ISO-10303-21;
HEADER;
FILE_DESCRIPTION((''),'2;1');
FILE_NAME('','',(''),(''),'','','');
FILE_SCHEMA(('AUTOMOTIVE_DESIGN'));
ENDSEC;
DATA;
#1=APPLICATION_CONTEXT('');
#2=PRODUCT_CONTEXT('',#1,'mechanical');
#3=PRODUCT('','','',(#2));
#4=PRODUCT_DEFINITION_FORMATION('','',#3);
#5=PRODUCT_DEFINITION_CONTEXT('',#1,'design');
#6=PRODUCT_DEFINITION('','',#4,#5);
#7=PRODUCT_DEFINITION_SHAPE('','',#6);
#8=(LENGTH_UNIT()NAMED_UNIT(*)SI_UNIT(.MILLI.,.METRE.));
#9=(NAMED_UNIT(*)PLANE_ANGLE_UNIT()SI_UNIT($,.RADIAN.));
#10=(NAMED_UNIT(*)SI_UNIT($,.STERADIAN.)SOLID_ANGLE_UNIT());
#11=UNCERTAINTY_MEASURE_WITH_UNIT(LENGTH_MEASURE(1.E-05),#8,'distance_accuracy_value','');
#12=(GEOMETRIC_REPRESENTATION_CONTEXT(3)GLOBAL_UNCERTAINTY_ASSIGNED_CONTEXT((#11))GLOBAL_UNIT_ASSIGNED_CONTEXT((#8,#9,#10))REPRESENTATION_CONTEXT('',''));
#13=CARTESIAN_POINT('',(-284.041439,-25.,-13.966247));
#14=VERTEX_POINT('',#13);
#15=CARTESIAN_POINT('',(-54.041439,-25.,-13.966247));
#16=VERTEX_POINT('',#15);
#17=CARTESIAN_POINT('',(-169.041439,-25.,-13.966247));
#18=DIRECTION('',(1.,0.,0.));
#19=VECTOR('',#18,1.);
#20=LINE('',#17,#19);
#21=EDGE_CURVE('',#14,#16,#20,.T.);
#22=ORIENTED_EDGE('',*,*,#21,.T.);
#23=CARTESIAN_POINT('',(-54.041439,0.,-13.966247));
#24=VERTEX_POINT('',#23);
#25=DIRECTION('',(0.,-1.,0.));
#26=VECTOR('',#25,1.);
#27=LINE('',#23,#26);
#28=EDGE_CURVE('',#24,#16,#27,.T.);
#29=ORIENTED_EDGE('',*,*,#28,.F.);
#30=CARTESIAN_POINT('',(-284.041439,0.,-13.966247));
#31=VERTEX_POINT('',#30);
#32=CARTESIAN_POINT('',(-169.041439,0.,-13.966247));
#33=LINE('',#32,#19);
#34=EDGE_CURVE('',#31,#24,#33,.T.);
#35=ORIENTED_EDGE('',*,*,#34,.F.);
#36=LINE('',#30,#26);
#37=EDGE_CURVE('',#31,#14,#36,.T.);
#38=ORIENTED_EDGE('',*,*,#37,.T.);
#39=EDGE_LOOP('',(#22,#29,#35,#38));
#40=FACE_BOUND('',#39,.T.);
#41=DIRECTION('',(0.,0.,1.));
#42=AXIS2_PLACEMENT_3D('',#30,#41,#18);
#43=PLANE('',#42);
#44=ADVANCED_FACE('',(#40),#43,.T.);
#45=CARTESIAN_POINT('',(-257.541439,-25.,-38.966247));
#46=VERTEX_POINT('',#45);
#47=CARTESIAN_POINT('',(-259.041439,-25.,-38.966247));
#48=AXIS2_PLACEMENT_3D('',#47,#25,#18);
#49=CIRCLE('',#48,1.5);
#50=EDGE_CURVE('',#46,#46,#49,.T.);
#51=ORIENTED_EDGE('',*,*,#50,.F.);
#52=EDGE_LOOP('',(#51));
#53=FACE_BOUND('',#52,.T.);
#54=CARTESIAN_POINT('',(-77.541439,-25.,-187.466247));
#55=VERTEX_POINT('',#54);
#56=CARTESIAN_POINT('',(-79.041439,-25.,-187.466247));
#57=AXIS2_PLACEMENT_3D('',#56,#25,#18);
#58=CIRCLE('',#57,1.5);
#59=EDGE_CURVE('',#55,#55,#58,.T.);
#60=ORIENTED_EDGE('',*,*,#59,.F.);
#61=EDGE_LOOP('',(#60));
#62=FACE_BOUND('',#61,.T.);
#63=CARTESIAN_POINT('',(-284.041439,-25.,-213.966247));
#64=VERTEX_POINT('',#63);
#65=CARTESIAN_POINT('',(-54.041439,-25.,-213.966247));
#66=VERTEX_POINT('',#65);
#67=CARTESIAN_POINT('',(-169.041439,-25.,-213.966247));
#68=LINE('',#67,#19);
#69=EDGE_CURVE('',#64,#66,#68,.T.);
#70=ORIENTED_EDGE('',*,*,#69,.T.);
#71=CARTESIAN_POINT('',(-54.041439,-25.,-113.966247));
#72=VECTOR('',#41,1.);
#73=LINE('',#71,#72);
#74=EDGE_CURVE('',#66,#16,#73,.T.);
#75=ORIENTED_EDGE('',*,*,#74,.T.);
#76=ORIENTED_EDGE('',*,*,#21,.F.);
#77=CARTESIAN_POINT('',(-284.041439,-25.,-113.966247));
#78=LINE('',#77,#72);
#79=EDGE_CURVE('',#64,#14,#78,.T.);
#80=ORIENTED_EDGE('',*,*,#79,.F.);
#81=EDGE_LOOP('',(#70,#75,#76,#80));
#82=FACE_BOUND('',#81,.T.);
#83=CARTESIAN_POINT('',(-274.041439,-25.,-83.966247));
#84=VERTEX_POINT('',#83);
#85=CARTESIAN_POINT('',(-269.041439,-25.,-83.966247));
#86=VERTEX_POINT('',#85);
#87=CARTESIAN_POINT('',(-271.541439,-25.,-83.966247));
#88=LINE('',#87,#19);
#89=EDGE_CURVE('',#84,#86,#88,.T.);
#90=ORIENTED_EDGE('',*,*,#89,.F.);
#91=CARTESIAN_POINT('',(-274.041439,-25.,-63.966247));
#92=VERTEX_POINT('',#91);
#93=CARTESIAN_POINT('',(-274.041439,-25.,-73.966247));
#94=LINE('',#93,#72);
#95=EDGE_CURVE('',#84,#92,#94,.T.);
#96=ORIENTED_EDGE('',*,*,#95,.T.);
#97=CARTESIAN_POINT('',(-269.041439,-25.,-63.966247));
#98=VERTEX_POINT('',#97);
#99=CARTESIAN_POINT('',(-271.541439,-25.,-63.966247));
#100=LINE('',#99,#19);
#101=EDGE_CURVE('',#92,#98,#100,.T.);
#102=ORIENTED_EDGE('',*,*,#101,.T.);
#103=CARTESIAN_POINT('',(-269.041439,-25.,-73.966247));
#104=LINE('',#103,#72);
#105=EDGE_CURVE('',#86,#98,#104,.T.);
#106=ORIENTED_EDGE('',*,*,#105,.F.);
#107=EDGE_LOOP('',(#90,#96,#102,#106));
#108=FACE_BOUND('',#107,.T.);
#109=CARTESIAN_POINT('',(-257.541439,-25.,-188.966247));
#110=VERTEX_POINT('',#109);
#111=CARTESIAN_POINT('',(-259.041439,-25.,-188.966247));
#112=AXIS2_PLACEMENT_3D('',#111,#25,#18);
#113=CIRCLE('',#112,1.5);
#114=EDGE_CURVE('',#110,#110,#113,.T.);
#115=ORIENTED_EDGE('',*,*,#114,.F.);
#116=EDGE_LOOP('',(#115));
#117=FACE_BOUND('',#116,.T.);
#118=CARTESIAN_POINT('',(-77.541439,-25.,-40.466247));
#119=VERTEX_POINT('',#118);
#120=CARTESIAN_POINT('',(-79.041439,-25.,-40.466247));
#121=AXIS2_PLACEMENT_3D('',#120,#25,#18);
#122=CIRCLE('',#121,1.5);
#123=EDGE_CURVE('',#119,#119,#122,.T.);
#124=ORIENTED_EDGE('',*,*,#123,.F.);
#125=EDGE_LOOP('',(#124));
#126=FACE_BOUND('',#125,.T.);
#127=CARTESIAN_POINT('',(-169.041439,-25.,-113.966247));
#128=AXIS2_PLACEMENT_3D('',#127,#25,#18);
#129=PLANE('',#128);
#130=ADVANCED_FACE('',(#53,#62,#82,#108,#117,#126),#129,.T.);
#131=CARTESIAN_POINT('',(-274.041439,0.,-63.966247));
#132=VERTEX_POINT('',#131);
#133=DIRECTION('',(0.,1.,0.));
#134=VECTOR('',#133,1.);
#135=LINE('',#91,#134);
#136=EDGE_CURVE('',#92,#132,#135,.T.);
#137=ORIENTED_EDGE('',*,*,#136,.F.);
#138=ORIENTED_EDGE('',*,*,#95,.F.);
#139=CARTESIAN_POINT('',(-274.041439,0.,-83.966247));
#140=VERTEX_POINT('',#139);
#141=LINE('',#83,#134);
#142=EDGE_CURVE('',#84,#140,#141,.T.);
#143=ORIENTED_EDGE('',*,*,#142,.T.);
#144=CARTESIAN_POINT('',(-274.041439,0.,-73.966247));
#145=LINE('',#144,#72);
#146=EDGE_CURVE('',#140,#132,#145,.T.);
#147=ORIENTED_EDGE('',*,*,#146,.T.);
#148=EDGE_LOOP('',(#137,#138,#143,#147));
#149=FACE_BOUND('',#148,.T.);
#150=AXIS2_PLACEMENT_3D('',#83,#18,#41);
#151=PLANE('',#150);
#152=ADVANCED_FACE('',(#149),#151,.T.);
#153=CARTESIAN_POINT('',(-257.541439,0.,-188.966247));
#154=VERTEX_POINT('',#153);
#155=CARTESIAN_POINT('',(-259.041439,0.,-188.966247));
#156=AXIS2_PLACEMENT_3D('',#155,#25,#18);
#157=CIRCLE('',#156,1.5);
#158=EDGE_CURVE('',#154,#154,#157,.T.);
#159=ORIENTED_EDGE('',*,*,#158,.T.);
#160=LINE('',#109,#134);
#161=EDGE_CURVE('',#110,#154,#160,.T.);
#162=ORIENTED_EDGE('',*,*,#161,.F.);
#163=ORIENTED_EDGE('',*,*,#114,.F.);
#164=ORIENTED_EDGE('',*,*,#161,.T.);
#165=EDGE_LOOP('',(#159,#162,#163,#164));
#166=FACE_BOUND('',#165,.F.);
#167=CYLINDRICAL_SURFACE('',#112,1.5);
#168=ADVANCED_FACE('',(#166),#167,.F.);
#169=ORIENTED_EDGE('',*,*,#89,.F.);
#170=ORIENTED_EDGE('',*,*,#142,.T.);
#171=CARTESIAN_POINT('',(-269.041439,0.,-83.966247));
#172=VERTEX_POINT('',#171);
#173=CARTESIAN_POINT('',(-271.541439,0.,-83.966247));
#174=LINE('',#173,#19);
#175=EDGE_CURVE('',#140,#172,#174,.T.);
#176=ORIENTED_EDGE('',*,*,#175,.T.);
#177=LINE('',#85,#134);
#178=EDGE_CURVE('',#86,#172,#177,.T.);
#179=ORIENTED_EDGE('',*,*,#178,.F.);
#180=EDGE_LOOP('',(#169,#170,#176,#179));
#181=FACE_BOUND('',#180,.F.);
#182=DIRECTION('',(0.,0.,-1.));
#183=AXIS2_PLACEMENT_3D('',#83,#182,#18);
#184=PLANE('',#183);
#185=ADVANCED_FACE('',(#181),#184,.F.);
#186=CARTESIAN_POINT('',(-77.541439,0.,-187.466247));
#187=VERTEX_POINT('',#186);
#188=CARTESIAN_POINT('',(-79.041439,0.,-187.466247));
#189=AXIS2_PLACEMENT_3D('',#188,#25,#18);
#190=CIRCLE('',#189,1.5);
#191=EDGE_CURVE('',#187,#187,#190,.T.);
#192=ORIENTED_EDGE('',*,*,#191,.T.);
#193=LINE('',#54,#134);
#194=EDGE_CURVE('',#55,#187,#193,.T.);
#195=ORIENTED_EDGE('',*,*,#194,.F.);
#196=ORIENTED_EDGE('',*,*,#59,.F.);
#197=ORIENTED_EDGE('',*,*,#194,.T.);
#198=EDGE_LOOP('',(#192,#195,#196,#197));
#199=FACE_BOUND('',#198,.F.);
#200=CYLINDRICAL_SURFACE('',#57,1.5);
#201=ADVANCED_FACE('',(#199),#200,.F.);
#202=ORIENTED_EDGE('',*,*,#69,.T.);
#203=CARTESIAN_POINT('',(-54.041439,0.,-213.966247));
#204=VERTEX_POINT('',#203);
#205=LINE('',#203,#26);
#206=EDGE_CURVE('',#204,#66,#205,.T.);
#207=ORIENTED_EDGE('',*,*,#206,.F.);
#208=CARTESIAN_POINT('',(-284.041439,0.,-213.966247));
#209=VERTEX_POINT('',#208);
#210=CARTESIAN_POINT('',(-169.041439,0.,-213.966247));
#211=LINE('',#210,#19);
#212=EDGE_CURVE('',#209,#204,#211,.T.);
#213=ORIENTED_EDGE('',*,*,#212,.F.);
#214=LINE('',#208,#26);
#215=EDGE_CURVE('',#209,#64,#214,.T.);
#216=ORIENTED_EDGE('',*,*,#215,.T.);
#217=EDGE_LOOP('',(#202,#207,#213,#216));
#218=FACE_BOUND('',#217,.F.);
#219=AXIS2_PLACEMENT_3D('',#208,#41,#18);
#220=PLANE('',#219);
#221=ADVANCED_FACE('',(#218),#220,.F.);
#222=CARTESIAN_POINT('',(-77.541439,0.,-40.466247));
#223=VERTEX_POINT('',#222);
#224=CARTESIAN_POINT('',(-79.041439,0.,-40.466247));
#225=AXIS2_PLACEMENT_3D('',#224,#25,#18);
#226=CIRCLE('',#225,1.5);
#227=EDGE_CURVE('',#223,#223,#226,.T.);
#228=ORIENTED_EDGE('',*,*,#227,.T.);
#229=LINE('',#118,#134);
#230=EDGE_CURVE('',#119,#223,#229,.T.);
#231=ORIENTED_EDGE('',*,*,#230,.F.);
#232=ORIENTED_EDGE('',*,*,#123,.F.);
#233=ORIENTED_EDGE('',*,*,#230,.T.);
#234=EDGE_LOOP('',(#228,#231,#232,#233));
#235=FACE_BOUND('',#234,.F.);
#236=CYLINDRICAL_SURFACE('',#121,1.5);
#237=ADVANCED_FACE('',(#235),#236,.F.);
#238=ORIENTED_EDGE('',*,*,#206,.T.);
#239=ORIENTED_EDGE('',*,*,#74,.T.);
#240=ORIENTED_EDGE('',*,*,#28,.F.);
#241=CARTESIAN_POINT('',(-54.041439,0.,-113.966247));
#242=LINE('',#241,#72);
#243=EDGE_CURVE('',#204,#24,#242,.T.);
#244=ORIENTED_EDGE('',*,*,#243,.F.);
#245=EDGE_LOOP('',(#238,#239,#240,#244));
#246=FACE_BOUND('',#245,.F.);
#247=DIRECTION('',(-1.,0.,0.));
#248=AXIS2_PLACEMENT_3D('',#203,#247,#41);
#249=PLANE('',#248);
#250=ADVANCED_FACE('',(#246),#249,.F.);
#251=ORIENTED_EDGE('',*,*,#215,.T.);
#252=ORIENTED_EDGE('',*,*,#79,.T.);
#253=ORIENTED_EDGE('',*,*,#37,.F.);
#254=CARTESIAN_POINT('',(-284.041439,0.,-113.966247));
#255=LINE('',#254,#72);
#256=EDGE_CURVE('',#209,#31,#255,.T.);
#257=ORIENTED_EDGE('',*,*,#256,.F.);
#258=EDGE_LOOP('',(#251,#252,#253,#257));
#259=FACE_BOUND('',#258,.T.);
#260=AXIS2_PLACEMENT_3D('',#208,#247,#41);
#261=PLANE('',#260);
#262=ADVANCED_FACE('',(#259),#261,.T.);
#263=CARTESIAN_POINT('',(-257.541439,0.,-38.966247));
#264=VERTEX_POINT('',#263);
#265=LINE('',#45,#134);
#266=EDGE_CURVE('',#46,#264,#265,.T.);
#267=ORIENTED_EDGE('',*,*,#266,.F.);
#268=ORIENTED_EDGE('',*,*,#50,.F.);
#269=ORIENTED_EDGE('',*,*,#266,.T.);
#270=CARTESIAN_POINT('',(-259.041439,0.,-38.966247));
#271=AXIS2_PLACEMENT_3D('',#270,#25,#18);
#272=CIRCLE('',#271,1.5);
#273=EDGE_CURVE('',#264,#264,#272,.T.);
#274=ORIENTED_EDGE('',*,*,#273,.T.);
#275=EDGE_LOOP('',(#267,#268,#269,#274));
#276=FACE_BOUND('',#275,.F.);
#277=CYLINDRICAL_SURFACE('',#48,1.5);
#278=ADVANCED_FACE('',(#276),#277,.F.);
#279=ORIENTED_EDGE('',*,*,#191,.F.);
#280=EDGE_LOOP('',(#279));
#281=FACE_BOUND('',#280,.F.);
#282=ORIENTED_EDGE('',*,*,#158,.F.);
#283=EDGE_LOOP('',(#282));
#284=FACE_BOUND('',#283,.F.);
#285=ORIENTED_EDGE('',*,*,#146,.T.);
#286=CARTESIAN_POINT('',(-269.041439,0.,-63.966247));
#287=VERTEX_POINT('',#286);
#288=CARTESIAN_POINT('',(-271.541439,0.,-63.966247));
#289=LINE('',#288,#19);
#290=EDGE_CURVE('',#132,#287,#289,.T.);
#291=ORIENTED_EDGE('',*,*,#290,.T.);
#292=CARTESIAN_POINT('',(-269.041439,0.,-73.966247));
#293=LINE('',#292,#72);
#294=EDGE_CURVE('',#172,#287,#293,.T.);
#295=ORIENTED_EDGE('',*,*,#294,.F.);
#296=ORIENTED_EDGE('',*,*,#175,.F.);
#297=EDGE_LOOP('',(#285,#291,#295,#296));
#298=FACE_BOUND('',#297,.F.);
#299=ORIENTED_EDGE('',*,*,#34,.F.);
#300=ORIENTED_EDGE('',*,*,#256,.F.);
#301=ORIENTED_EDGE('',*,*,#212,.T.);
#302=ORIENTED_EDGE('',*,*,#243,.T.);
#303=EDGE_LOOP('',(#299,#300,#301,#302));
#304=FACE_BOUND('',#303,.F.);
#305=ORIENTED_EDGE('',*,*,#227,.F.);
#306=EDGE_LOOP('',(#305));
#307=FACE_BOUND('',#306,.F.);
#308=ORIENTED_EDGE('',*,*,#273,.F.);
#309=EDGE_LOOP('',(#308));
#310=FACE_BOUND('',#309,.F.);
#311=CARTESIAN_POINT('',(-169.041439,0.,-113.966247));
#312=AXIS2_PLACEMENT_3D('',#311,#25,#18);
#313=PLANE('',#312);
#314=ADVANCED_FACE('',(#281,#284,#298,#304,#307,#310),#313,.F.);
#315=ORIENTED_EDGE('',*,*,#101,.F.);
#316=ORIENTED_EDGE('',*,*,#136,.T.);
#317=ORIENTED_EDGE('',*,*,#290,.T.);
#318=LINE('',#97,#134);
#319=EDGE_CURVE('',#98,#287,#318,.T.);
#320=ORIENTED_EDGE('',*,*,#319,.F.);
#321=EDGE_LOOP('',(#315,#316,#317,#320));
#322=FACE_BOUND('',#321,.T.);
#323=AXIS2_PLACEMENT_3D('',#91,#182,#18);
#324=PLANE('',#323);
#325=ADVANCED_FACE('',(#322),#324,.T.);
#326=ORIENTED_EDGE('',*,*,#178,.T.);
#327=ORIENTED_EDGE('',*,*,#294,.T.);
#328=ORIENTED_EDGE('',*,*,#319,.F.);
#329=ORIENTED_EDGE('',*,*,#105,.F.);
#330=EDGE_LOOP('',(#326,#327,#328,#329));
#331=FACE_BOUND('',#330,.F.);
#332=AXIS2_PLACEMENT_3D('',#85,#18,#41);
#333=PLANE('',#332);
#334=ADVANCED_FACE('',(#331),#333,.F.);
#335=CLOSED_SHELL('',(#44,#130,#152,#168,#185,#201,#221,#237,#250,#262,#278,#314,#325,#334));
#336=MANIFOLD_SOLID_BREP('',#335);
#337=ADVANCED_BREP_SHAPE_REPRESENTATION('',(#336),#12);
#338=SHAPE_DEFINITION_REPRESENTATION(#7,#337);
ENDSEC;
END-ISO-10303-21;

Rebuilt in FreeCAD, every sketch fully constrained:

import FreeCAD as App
import Part
import Sketcher

V = App.Vector


def add_polygon(sketch, points):
    """Adds a closed chain of lines whose ends are joined by coincident constraints."""
    first, n = sketch.GeometryCount, len(points)
    for a, b in zip(points, points[1:] + points[:1]):
        sketch.addGeometry(Part.LineSegment(App.Vector(*a, 0), App.Vector(*b, 0)), False)
    for i in range(n):
        sketch.addConstraint(Sketcher.Constraint("Coincident", first + i, 2, first + (i + 1) % n, 1))

doc = App.newDocument("Part")
body = doc.addObject("PartDesign::Body", "Body")

# Sketch on XZ plane
sketch1 = doc.addObject("Sketcher::SketchObject", "Sketch")
body.addObject(sketch1)
sketch1.AttachmentSupport = (doc.XZ_Plane, [""])
sketch1.MapMode = "FlatFace"
add_polygon(sketch1, [(-284, -14), (-284, -214), (-54, -214), (-54, -14)])  # lines 0-3
sketch1.addConstraint(Sketcher.Constraint("Vertical", 0))
sketch1.addConstraint(Sketcher.Constraint("Horizontal", 1))
sketch1.addConstraint(Sketcher.Constraint("Vertical", 2))
sketch1.addConstraint(Sketcher.Constraint("Horizontal", 3))
sketch1.addConstraint(Sketcher.Constraint("DistanceX", 1, 1, 1, 2, 230.0))
sketch1.addConstraint(Sketcher.Constraint("DistanceY", 0, 2, 0, 1, 200.0))
sketch1.addConstraint(Sketcher.Constraint("DistanceX", 0, 2, -1, 1, 284.041439))
sketch1.addConstraint(Sketcher.Constraint("DistanceY", 0, 2, -1, 1, 213.966247))
pad1 = doc.addObject("PartDesign::Pad", "Pad")
body.addObject(pad1)
pad1.Profile = sketch1
pad1.Length = 25

# Sketch on XZ plane
sketch2 = doc.addObject("Sketcher::SketchObject", "Sketch001")
body.addObject(sketch2)
sketch2.AttachmentSupport = (doc.XZ_Plane, [""])
sketch2.MapMode = "FlatFace"
sketch2.AttachmentOffset = App.Placement(V(0, 0, 25), App.Rotation())
add_polygon(sketch2, [(-274, -64), (-274, -84), (-269, -84), (-269, -64)])  # lines 0-3
sketch2.addGeometry(Part.Circle(V(-79, -40.5, 0), V(0, 0, 1), 1.5), False)  # 4
sketch2.addGeometry(Part.Circle(V(-79, -187.5, 0), V(0, 0, 1), 1.5), False)  # 5
sketch2.addGeometry(Part.Circle(V(-259, -39, 0), V(0, 0, 1), 1.5), False)  # 6
sketch2.addGeometry(Part.Circle(V(-259, -189, 0), V(0, 0, 1), 1.5), False)  # 7
sketch2.addConstraint(Sketcher.Constraint("Vertical", 0))
sketch2.addConstraint(Sketcher.Constraint("Horizontal", 1))
sketch2.addConstraint(Sketcher.Constraint("Vertical", 2))
sketch2.addConstraint(Sketcher.Constraint("Horizontal", 3))
sketch2.addConstraint(Sketcher.Constraint("Equal", 4, 5))
sketch2.addConstraint(Sketcher.Constraint("Equal", 5, 6))
sketch2.addConstraint(Sketcher.Constraint("Equal", 6, 7))
sketch2.addConstraint(Sketcher.Constraint("Vertical", 4, 3, 5, 3))
sketch2.addConstraint(Sketcher.Constraint("Vertical", 6, 3, 7, 3))
sketch2.addConstraint(Sketcher.Constraint("Diameter", 4, 3.0))
sketch2.addConstraint(Sketcher.Constraint("DistanceX", 1, 1, 1, 2, 5.0))
sketch2.addConstraint(Sketcher.Constraint("DistanceY", 0, 2, 0, 1, 20.0))
sketch2.addConstraint(Sketcher.Constraint("DistanceY", 5, 3, 4, 3, 147.0))
sketch2.addConstraint(Sketcher.Constraint("DistanceX", 6, 3, 4, 3, 180.0))
sketch2.addConstraint(Sketcher.Constraint("DistanceY", 7, 3, 6, 3, 150.0))
sketch2.addConstraint(Sketcher.Constraint("DistanceX", 0, 2, 6, 3, 15.0))
sketch2.addConstraint(Sketcher.Constraint("DistanceY", 0, 2, 6, 3, 45.0))
sketch2.addConstraint(Sketcher.Constraint("DistanceY", 4, 3, 6, 3, 1.5))
sketch2.addConstraint(Sketcher.Constraint("DistanceX", 4, 3, -1, 1, 79.041439))
sketch2.addConstraint(Sketcher.Constraint("DistanceY", 4, 3, -1, 1, 40.466247))
pocket1 = doc.addObject("PartDesign::Pocket", "Pocket")
body.addObject(pocket1)
pocket1.Profile = sketch2
pocket1.Length = 25

# Sketch on XZ plane
sketch3 = doc.addObject("Sketcher::SketchObject", "Sketch002")
body.addObject(sketch3)
sketch3.AttachmentSupport = (doc.XZ_Plane, [""])
sketch3.MapMode = "FlatFace"
sketch3.AttachmentOffset = App.Placement(V(0, 0, 25), App.Rotation())
add_polygon(sketch3, [(-274, -64), (-274, -84), (-269, -84), (-269, -64)])  # lines 0-3
sketch3.addGeometry(Part.Circle(V(-79, -40.5, 0), V(0, 0, 1), 1.5), False)  # 4
sketch3.addGeometry(Part.Circle(V(-79, -187.5, 0), V(0, 0, 1), 1.5), False)  # 5
sketch3.addGeometry(Part.Circle(V(-259, -39, 0), V(0, 0, 1), 1.5), False)  # 6
sketch3.addGeometry(Part.Circle(V(-259, -189, 0), V(0, 0, 1), 1.5), False)  # 7
sketch3.addConstraint(Sketcher.Constraint("Vertical", 0))
sketch3.addConstraint(Sketcher.Constraint("Horizontal", 1))
sketch3.addConstraint(Sketcher.Constraint("Vertical", 2))
sketch3.addConstraint(Sketcher.Constraint("Horizontal", 3))
sketch3.addConstraint(Sketcher.Constraint("Equal", 4, 5))
sketch3.addConstraint(Sketcher.Constraint("Equal", 5, 6))
sketch3.addConstraint(Sketcher.Constraint("Equal", 6, 7))
sketch3.addConstraint(Sketcher.Constraint("Vertical", 4, 3, 5, 3))
sketch3.addConstraint(Sketcher.Constraint("Vertical", 6, 3, 7, 3))
sketch3.addConstraint(Sketcher.Constraint("Diameter", 4, 3.0))
sketch3.addConstraint(Sketcher.Constraint("DistanceX", 1, 1, 1, 2, 5.0))
sketch3.addConstraint(Sketcher.Constraint("DistanceY", 0, 2, 0, 1, 20.0))
sketch3.addConstraint(Sketcher.Constraint("DistanceY", 5, 3, 4, 3, 147.0))
sketch3.addConstraint(Sketcher.Constraint("DistanceX", 6, 3, 4, 3, 180.0))
sketch3.addConstraint(Sketcher.Constraint("DistanceY", 7, 3, 6, 3, 150.0))
sketch3.addConstraint(Sketcher.Constraint("DistanceX", 0, 2, 6, 3, 15.0))
sketch3.addConstraint(Sketcher.Constraint("DistanceY", 0, 2, 6, 3, 45.0))
sketch3.addConstraint(Sketcher.Constraint("DistanceY", 4, 3, 6, 3, 1.5))
sketch3.addConstraint(Sketcher.Constraint("DistanceX", 4, 3, -1, 1, 79.041439))
sketch3.addConstraint(Sketcher.Constraint("DistanceY", 4, 3, -1, 1, 40.466247))
pocket2 = doc.addObject("PartDesign::Pocket", "Pocket001")
body.addObject(pocket2)
pocket2.Profile = sketch3
pocket2.Length = 25

doc.recompute()
